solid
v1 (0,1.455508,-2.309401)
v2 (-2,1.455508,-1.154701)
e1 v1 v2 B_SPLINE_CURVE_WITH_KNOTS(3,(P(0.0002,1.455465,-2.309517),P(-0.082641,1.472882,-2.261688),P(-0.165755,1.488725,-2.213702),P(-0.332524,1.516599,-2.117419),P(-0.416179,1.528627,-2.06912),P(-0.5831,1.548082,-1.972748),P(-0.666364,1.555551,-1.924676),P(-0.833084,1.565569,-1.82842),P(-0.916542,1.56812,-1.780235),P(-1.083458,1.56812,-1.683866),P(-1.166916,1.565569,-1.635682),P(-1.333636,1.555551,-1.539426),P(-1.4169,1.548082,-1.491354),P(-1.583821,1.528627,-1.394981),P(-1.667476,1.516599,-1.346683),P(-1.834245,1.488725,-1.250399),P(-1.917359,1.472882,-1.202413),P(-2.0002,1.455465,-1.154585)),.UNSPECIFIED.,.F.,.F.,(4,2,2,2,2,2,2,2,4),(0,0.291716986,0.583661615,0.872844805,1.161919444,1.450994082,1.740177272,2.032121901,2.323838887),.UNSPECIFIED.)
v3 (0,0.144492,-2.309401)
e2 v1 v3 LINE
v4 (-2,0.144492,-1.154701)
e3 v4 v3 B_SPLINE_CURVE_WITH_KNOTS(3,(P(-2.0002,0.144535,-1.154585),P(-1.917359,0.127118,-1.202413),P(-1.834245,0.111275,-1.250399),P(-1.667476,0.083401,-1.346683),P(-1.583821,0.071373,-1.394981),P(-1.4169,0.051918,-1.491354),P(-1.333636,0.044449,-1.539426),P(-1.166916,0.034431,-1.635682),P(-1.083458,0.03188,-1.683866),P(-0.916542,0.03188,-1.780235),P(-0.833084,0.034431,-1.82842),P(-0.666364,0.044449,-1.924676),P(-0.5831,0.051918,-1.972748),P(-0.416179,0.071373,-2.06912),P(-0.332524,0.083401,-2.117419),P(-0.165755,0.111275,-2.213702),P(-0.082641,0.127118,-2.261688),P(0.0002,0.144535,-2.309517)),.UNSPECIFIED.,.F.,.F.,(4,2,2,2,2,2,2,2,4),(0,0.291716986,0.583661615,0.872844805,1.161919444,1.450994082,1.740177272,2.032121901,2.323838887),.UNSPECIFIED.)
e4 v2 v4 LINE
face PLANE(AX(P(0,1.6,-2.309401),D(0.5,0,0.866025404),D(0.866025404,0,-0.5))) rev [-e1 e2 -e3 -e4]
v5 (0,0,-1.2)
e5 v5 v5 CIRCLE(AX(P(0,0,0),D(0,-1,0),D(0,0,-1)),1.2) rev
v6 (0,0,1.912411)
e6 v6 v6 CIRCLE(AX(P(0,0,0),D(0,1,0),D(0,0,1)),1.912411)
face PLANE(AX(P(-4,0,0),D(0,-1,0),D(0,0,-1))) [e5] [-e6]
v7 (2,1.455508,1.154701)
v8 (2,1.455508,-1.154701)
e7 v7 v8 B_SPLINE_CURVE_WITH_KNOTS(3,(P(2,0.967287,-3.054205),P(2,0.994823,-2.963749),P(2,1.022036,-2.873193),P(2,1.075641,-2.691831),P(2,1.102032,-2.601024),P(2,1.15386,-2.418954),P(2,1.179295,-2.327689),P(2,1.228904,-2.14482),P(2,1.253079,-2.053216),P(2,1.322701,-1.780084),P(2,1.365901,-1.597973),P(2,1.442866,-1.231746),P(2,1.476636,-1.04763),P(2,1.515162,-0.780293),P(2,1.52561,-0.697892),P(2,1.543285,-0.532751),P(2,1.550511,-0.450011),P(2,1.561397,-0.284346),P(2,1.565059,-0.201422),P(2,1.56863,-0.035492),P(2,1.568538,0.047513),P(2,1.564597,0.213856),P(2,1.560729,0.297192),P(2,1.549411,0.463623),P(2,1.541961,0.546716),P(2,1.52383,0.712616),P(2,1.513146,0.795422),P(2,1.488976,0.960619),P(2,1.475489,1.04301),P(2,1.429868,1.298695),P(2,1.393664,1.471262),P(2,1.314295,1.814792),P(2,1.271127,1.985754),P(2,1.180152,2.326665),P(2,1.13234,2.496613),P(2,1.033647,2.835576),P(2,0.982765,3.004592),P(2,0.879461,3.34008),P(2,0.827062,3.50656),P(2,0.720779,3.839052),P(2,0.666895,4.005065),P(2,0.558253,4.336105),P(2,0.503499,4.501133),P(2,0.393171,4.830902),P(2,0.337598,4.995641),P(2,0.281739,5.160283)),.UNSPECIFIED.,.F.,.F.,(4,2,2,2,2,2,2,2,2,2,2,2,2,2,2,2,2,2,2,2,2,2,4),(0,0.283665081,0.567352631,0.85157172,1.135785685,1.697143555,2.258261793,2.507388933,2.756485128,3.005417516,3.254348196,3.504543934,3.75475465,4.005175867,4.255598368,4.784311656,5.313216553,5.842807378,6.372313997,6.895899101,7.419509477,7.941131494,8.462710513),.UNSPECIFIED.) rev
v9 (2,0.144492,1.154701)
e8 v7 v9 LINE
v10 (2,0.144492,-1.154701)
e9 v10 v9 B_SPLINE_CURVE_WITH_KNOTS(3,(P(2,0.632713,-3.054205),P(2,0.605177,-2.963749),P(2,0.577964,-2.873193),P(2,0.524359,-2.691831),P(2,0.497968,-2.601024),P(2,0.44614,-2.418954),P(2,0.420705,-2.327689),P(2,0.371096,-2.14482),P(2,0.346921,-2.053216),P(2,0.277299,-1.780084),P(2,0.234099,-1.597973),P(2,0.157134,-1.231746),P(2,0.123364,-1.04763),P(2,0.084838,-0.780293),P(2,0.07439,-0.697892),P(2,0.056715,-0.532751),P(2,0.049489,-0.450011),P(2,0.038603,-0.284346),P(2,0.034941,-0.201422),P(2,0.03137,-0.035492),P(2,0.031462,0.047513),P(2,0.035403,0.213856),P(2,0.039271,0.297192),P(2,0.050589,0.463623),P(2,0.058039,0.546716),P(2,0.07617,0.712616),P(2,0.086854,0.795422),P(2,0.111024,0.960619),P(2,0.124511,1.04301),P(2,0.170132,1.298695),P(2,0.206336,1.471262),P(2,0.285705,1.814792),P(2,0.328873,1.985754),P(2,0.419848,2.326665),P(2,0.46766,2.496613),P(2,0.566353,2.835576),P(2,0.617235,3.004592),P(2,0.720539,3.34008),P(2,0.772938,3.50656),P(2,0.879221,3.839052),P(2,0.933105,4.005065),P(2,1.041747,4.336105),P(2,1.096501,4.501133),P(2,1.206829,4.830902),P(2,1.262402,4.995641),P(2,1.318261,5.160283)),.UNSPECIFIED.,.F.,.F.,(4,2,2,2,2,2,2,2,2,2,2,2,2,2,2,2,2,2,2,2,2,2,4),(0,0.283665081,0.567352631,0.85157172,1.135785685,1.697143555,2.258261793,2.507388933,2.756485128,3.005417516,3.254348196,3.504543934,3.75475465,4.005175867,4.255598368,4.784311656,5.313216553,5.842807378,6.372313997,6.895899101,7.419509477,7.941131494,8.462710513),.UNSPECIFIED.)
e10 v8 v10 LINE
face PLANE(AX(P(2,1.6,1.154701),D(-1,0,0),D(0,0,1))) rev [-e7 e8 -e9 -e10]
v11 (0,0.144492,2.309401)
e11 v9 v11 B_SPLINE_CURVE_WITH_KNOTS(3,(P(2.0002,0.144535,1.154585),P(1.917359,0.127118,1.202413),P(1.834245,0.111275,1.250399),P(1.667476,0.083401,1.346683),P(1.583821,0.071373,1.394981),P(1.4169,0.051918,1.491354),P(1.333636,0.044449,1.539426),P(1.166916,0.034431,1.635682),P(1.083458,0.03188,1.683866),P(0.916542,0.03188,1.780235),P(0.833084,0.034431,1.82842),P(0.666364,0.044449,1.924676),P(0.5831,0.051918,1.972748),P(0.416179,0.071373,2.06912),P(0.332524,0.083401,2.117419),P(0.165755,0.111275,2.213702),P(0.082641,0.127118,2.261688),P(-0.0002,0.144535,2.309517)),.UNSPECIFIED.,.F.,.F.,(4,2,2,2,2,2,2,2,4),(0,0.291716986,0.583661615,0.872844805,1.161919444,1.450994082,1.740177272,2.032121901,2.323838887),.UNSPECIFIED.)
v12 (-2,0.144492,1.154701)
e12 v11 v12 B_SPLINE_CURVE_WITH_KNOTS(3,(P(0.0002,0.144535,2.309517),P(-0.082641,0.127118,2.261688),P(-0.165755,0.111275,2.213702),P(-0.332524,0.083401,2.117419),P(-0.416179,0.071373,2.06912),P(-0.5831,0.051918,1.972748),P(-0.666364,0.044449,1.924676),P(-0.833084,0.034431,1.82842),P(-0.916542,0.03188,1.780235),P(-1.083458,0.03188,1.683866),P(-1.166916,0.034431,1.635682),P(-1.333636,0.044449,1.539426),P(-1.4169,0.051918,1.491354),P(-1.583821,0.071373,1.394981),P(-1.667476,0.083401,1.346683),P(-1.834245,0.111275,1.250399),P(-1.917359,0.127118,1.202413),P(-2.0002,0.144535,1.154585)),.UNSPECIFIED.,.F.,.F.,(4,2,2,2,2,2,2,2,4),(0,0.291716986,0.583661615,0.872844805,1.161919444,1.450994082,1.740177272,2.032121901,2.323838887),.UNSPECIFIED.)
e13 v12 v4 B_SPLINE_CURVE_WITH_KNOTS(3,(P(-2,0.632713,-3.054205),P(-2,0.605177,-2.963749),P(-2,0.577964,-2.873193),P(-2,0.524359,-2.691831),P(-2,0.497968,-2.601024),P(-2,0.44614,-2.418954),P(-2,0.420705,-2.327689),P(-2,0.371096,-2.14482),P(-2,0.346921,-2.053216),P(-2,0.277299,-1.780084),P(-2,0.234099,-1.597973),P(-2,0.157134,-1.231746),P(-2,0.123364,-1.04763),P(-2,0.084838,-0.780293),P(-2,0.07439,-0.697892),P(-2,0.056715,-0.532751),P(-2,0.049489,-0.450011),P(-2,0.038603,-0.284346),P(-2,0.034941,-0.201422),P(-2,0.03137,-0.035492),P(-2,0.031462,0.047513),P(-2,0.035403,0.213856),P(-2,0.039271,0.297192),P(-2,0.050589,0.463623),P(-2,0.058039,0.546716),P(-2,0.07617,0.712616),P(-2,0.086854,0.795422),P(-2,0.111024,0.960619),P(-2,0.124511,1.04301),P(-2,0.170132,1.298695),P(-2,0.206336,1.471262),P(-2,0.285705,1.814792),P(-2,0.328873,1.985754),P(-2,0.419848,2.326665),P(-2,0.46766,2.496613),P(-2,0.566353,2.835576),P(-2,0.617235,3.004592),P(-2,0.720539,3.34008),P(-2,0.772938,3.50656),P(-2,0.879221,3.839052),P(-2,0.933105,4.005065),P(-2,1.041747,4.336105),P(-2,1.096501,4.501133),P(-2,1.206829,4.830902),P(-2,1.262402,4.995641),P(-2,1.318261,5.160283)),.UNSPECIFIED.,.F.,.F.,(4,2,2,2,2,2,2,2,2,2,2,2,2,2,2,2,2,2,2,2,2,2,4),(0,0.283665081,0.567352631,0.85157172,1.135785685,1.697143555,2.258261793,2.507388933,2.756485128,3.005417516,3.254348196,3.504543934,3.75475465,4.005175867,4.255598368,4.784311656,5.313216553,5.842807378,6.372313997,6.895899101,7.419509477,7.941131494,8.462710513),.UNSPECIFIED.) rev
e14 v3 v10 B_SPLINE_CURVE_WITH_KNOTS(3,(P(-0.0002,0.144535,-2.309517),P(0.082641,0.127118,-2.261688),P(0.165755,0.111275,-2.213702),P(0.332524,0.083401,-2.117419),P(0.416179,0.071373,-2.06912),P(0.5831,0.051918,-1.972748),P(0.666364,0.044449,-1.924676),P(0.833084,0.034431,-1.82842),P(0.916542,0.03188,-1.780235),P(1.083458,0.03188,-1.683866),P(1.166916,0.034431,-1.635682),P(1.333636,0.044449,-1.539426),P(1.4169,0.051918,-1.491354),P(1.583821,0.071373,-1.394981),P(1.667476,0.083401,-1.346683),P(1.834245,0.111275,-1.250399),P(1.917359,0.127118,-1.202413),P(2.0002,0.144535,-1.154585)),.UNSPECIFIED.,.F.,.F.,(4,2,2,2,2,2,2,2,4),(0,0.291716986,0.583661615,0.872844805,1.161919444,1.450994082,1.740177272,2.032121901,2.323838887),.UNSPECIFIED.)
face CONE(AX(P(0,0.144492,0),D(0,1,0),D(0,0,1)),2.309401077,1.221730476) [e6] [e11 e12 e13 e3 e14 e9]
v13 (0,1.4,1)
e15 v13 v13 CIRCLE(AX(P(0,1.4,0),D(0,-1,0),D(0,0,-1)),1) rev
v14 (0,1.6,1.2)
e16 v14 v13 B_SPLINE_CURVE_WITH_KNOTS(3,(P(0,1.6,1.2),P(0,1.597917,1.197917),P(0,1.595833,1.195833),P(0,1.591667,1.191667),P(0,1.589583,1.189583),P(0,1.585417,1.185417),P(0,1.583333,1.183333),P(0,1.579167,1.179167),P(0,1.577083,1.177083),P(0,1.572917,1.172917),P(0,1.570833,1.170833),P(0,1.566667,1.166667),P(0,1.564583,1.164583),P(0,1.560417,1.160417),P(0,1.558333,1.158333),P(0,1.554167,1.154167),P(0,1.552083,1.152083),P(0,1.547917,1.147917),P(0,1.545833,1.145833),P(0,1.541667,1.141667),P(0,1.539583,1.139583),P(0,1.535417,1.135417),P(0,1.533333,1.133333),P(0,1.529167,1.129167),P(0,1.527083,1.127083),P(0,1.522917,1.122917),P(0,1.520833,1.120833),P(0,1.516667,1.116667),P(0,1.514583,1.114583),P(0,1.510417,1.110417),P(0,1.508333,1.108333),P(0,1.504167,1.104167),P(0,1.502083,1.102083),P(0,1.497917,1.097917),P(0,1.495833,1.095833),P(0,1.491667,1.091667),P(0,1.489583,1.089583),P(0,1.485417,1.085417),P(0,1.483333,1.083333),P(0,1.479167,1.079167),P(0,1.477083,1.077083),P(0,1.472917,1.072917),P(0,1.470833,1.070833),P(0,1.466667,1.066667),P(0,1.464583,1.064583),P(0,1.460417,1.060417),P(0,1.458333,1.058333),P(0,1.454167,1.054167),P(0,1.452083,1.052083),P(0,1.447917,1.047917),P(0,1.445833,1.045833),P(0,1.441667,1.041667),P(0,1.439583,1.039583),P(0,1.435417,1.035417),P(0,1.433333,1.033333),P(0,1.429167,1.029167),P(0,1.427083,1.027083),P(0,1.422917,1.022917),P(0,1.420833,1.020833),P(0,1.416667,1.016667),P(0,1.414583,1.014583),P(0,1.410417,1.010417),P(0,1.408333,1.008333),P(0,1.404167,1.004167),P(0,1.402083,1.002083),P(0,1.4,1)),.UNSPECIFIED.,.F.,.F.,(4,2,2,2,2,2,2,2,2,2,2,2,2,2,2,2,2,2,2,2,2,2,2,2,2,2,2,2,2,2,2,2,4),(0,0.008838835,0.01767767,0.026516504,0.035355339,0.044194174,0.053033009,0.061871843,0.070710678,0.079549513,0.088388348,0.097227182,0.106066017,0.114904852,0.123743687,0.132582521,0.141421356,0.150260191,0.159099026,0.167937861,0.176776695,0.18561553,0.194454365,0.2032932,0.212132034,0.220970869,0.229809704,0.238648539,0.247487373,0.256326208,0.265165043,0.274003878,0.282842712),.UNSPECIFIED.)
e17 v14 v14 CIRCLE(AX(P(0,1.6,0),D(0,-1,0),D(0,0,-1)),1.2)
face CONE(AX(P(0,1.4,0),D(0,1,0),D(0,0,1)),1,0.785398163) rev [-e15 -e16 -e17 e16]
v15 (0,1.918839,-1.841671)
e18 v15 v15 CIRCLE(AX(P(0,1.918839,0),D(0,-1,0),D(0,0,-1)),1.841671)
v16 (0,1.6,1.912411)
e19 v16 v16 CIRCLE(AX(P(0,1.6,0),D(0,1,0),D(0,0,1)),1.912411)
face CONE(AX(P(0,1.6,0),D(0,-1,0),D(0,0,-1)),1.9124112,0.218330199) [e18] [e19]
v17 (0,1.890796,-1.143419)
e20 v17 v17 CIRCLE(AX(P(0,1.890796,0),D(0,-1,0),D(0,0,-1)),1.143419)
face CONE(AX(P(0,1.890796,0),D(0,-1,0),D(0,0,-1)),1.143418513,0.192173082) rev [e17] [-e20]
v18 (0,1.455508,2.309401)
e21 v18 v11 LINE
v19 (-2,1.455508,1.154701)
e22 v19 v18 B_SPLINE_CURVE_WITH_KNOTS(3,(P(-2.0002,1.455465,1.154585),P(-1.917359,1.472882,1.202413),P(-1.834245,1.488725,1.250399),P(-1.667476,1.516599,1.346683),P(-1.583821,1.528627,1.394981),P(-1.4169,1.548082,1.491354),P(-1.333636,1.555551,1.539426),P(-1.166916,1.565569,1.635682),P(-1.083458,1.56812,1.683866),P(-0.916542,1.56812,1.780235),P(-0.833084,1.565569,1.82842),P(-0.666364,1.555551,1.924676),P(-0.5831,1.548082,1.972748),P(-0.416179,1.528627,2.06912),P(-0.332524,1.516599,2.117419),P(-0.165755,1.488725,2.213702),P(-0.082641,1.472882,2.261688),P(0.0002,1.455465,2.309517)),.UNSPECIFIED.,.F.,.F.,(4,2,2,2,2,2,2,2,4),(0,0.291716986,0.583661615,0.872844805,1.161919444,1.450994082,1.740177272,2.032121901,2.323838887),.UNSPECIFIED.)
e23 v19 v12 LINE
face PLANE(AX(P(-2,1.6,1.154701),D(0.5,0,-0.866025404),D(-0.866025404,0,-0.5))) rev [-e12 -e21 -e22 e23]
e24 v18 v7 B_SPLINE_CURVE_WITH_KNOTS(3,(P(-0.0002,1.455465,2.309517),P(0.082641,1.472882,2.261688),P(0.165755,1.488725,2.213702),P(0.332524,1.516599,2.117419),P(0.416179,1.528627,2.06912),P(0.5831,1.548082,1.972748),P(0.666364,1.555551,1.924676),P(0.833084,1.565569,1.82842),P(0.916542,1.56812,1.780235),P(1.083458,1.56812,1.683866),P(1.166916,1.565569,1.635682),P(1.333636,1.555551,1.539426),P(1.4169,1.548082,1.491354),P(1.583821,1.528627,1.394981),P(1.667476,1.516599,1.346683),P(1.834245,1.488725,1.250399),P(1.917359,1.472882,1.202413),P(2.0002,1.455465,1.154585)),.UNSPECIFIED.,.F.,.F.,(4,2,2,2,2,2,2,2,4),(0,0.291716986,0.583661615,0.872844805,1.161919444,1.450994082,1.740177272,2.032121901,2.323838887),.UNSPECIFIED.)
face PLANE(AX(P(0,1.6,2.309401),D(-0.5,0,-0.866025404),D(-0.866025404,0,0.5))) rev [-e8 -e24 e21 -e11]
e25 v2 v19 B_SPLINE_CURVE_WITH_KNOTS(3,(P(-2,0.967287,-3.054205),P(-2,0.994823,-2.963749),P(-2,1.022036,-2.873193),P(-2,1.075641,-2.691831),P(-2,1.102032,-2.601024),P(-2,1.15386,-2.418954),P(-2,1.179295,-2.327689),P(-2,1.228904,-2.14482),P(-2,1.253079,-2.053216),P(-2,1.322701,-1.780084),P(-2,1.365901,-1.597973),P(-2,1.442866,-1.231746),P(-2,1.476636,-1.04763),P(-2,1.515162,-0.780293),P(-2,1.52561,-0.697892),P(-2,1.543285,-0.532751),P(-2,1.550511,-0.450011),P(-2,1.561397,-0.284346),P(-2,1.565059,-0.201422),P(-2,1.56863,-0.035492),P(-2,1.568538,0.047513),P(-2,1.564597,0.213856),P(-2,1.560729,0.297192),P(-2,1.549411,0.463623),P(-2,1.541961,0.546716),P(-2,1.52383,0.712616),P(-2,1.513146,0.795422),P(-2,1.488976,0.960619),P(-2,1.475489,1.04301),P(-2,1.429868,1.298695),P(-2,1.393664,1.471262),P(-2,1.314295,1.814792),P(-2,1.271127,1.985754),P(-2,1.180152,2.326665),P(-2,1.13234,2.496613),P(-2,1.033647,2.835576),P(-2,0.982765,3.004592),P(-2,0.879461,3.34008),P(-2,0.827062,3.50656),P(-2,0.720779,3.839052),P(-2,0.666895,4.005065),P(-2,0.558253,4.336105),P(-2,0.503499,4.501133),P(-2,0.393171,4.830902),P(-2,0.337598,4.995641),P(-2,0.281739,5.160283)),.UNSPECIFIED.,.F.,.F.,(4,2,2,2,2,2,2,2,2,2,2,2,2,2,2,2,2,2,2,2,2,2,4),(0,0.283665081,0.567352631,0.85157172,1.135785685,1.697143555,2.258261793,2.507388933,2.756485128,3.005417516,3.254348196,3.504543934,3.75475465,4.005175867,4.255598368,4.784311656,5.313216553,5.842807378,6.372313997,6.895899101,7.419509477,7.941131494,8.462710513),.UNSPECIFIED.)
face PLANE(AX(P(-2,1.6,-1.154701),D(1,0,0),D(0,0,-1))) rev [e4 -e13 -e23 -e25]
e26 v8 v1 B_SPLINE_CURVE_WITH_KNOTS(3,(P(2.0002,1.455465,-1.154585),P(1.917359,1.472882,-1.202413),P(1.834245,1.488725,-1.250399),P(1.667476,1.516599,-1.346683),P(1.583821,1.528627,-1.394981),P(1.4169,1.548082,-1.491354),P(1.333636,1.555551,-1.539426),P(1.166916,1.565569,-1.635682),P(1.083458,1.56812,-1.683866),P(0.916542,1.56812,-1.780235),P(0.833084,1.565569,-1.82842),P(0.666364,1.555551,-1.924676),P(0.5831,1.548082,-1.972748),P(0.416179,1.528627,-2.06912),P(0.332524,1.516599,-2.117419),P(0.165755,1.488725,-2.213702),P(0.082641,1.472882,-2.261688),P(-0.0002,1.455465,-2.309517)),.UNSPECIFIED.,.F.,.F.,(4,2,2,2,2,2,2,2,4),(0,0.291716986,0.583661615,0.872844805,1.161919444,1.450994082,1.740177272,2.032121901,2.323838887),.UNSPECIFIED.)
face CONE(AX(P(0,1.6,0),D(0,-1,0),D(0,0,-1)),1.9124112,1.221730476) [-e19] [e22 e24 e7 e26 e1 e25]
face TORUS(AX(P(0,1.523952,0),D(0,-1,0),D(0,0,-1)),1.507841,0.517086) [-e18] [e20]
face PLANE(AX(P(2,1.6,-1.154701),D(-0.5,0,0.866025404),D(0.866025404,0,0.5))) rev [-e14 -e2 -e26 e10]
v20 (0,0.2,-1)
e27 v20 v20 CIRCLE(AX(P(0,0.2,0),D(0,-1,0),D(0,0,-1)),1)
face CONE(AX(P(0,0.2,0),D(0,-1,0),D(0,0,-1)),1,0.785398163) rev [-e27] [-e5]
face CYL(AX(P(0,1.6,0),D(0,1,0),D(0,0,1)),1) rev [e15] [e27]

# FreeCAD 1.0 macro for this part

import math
import FreeCAD as App
import Part
import Sketcher

V = App.Vector
Q = App.Units.Quantity


def edges_at(feature, points):
    """Names of the edges that pass closest to the given points."""
    edges = feature.Shape.Edges
    near = lambda p: min(range(len(edges)), key=lambda i: edges[i].distToShape(Part.Vertex(*p))[0])
    return sorted({f"Edge{near(p) + 1}" for p in points})

doc = App.newDocument("Part")
body = doc.addObject("PartDesign::Body", "Body")

sketch1 = doc.addObject("Sketcher::SketchObject", "Sketch")
body.addObject(sketch1)
sketch1.AttachmentSupport = (doc.XZ_Plane, [""])
sketch1.MapMode = "FlatFace"
sketch1.addGeometry([
    Part.LineSegment(V(0, 2.3, 0), V(2, 1.2, 0)),
    Part.LineSegment(V(2, 1.2, 0), V(2, -1.2, 0)),
    Part.LineSegment(V(2, -1.2, 0), V(0, -2.3, 0)),
    Part.LineSegment(V(0, -2.3, 0), V(-2, -1.2, 0)),
    Part.LineSegment(V(-2, -1.2, 0), V(-2, 1.2, 0)),
    Part.LineSegment(V(-2, 1.2, 0), V(0, 2.3, 0)),
], False)
sketch1.addConstraint([
    Sketcher.Constraint("Coincident", 0, 2, 1, 1),
    Sketcher.Constraint("Coincident", 1, 2, 2, 1),
    Sketcher.Constraint("Coincident", 2, 2, 3, 1),
    Sketcher.Constraint("Coincident", 3, 2, 4, 1),
    Sketcher.Constraint("Coincident", 4, 2, 5, 1),
    Sketcher.Constraint("Coincident", 5, 2, 0, 1),
    Sketcher.Constraint("Vertical", 1),
    Sketcher.Constraint("Vertical", 4),
    Sketcher.Constraint("Symmetric", 0, 2, 3, 2, -1, 1),
    Sketcher.Constraint("Symmetric", 2, 2, 5, 2, -1, 1),
    Sketcher.Constraint("PointOnObject", 2, 2, -2),
    Sketcher.Constraint("Parallel", 2, 5),
    Sketcher.Constraint("Horizontal", 1, 2, 3, 2),
    Sketcher.Constraint("Angle", 0, Q("-30 deg")),
    Sketcher.Constraint("DistanceX", -1, 1, 0, 2, 2.0),
    Sketcher.Constraint("DistanceY", 1, 2, 1, 1, 2.309401),
])
pad1 = doc.addObject("PartDesign::Pad", "Pad")
body.addObject(pad1)
pad1.Profile = sketch1
pad1.Length = 1.6
pad1.Reversed = True

sketch2 = doc.addObject("Sketcher::SketchObject", "Sketch001")
body.addObject(sketch2)
sketch2.AttachmentSupport = (doc.XZ_Plane, [""])
sketch2.MapMode = "FlatFace"
sketch2.AttachmentOffset = App.Placement(V(0, 0, -1.6), App.Rotation())
sketch2.addGeometry(Part.Circle(V(0, 0, 0), V(0, 0, 1), 0.8), False)
sketch2.addConstraint([
    Sketcher.Constraint("Coincident", 0, 3, -1, 1),
    Sketcher.Constraint("Diameter", 0, 1.6),
])
doc.recompute()
hole = doc.addObject("PartDesign::Hole", "Hole")
body.addObject(hole)
hole.Profile = sketch2
hole.ThreadType = "None"
hole.Diameter = 1.6
hole.DepthType = "Dimension"
hole.Depth = 6
hole.DrillPoint = "Angled"
hole.DrillPointAngle = 118
hole.HoleCutType = "Counterbore"
hole.HoleCutDiameter = 2
hole.HoleCutDepth = 4
hole.Reversed = True

sketch3 = doc.addObject("Sketcher::SketchObject", "Sketch002")
body.addObject(sketch3)
sketch3.AttachmentSupport = (doc.YZ_Plane, [""])
sketch3.MapMode = "FlatFace"
sketch3.addGeometry([
    Part.LineSegment(V(0.14, -2.31, 0), V(0, -1.91, 0)),
    Part.LineSegment(V(0, -1.91, 0), V(0, -2.31, 0)),
    Part.LineSegment(V(0, -2.31, 0), V(0.14, -2.31, 0)),
    Part.LineSegment(V(1.46, -2.31, 0), V(1.6, -2.31, 0)),
    Part.LineSegment(V(1.6, -2.31, 0), V(1.6, -1.91, 0)),
    Part.LineSegment(V(1.6, -1.91, 0), V(1.46, -2.31, 0)),
], False)
sketch3.addConstraint([
    Sketcher.Constraint("Coincident", 0, 2, 1, 1),
    Sketcher.Constraint("Coincident", 1, 2, 2, 1),
    Sketcher.Constraint("Coincident", 2, 2, 0, 1),
    Sketcher.Constraint("Coincident", 3, 2, 4, 1),
    Sketcher.Constraint("Coincident", 4, 2, 5, 1),
    Sketcher.Constraint("Coincident", 5, 2, 3, 1),
    Sketcher.Constraint("Vertical", 1),
    Sketcher.Constraint("Horizontal", 2),
    Sketcher.Constraint("Horizontal", 3),
    Sketcher.Constraint("Vertical", 4),
    Sketcher.Constraint("PointOnObject", 0, 2, -2),
    Sketcher.Constraint("Horizontal", 2, 2, 3, 2),
    Sketcher.Constraint("Horizontal", 0, 2, 4, 2),
    Sketcher.Constraint("Equal", 2, 3),
    Sketcher.Constraint("Angle", 0, Q("110 deg")),
    Sketcher.Constraint("DistanceX", -1, 1, 3, 2, 1.6),
    Sketcher.Constraint("DistanceY", 1, 2, 1, 1, 0.39699),
    Sketcher.Constraint("DistanceY", 1, 2, -1, 1, 2.309401),
])
groove = doc.addObject("PartDesign::Groove", "Groove")
body.addObject(groove)
groove.Profile = sketch3
groove.ReferenceAxis = (sketch3, ["H_Axis"])
groove.Angle = 360
doc.recompute()

chamfer = doc.addObject("PartDesign::Chamfer", "Chamfer")
body.addObject(chamfer)
chamfer.Base = (groove, edges_at(groove, [(1, 0, 0), (1, 1.6, 0)]))
chamfer.Size = 0.2

sketch4 = doc.addObject("Sketcher::SketchObject", "Sketch003")
body.addObject(sketch4)
sketch4.AttachmentSupport = (doc.XY_Plane, [""])
sketch4.MapMode = "FlatFace"
sketch4.addGeometry([
    Part.LineSegment(V(1.2, 1.6, 0), V(1.91, 1.6, 0)),
    Part.LineSegment(V(1.91, 1.6, 0), V(1.84, 1.92, 0)),
    Part.ArcOfCircle(Part.Circle(V(1.51, 1.52, 0), V(0, 0, 1), 0.52), math.radians(50), math.radians(135)),
    Part.LineSegment(V(1.14, 1.89, 0), V(1.2, 1.6, 0)),
], False)
sketch4.addConstraint([
    Sketcher.Constraint("Coincident", 0, 2, 1, 1),
    Sketcher.Constraint("Coincident", 1, 2, 2, 1),
    Sketcher.Constraint("Coincident", 2, 2, 3, 1),
    Sketcher.Constraint("Coincident", 3, 2, 0, 1),
    Sketcher.Constraint("Horizontal", 0),
    Sketcher.Constraint("DistanceY", -1, 1, 0, 2, 1.6),
    Sketcher.Constraint("DistanceX", -1, 1, 3, 2, 1.2),
    Sketcher.Constraint("Radius", 2, 0.517086),
    Sketcher.Constraint("DistanceX", 0, 1, 0, 2, 0.712411),
    Sketcher.Constraint("Distance", 1, 0.326592),
    Sketcher.Constraint("Distance", 3, 0.29625),
    Sketcher.Constraint("DistanceX", -1, 1, 2, 3, 1.507841),
    Sketcher.Constraint("DistanceX", -1, 1, 1, 2, 1.841671),
])
revolution = doc.addObject("PartDesign::Revolution", "Revolution")
body.addObject(revolution)
revolution.Profile = sketch4
revolution.ReferenceAxis = (sketch4, ["V_Axis"])
revolution.Angle = 360

doc.recompute()
